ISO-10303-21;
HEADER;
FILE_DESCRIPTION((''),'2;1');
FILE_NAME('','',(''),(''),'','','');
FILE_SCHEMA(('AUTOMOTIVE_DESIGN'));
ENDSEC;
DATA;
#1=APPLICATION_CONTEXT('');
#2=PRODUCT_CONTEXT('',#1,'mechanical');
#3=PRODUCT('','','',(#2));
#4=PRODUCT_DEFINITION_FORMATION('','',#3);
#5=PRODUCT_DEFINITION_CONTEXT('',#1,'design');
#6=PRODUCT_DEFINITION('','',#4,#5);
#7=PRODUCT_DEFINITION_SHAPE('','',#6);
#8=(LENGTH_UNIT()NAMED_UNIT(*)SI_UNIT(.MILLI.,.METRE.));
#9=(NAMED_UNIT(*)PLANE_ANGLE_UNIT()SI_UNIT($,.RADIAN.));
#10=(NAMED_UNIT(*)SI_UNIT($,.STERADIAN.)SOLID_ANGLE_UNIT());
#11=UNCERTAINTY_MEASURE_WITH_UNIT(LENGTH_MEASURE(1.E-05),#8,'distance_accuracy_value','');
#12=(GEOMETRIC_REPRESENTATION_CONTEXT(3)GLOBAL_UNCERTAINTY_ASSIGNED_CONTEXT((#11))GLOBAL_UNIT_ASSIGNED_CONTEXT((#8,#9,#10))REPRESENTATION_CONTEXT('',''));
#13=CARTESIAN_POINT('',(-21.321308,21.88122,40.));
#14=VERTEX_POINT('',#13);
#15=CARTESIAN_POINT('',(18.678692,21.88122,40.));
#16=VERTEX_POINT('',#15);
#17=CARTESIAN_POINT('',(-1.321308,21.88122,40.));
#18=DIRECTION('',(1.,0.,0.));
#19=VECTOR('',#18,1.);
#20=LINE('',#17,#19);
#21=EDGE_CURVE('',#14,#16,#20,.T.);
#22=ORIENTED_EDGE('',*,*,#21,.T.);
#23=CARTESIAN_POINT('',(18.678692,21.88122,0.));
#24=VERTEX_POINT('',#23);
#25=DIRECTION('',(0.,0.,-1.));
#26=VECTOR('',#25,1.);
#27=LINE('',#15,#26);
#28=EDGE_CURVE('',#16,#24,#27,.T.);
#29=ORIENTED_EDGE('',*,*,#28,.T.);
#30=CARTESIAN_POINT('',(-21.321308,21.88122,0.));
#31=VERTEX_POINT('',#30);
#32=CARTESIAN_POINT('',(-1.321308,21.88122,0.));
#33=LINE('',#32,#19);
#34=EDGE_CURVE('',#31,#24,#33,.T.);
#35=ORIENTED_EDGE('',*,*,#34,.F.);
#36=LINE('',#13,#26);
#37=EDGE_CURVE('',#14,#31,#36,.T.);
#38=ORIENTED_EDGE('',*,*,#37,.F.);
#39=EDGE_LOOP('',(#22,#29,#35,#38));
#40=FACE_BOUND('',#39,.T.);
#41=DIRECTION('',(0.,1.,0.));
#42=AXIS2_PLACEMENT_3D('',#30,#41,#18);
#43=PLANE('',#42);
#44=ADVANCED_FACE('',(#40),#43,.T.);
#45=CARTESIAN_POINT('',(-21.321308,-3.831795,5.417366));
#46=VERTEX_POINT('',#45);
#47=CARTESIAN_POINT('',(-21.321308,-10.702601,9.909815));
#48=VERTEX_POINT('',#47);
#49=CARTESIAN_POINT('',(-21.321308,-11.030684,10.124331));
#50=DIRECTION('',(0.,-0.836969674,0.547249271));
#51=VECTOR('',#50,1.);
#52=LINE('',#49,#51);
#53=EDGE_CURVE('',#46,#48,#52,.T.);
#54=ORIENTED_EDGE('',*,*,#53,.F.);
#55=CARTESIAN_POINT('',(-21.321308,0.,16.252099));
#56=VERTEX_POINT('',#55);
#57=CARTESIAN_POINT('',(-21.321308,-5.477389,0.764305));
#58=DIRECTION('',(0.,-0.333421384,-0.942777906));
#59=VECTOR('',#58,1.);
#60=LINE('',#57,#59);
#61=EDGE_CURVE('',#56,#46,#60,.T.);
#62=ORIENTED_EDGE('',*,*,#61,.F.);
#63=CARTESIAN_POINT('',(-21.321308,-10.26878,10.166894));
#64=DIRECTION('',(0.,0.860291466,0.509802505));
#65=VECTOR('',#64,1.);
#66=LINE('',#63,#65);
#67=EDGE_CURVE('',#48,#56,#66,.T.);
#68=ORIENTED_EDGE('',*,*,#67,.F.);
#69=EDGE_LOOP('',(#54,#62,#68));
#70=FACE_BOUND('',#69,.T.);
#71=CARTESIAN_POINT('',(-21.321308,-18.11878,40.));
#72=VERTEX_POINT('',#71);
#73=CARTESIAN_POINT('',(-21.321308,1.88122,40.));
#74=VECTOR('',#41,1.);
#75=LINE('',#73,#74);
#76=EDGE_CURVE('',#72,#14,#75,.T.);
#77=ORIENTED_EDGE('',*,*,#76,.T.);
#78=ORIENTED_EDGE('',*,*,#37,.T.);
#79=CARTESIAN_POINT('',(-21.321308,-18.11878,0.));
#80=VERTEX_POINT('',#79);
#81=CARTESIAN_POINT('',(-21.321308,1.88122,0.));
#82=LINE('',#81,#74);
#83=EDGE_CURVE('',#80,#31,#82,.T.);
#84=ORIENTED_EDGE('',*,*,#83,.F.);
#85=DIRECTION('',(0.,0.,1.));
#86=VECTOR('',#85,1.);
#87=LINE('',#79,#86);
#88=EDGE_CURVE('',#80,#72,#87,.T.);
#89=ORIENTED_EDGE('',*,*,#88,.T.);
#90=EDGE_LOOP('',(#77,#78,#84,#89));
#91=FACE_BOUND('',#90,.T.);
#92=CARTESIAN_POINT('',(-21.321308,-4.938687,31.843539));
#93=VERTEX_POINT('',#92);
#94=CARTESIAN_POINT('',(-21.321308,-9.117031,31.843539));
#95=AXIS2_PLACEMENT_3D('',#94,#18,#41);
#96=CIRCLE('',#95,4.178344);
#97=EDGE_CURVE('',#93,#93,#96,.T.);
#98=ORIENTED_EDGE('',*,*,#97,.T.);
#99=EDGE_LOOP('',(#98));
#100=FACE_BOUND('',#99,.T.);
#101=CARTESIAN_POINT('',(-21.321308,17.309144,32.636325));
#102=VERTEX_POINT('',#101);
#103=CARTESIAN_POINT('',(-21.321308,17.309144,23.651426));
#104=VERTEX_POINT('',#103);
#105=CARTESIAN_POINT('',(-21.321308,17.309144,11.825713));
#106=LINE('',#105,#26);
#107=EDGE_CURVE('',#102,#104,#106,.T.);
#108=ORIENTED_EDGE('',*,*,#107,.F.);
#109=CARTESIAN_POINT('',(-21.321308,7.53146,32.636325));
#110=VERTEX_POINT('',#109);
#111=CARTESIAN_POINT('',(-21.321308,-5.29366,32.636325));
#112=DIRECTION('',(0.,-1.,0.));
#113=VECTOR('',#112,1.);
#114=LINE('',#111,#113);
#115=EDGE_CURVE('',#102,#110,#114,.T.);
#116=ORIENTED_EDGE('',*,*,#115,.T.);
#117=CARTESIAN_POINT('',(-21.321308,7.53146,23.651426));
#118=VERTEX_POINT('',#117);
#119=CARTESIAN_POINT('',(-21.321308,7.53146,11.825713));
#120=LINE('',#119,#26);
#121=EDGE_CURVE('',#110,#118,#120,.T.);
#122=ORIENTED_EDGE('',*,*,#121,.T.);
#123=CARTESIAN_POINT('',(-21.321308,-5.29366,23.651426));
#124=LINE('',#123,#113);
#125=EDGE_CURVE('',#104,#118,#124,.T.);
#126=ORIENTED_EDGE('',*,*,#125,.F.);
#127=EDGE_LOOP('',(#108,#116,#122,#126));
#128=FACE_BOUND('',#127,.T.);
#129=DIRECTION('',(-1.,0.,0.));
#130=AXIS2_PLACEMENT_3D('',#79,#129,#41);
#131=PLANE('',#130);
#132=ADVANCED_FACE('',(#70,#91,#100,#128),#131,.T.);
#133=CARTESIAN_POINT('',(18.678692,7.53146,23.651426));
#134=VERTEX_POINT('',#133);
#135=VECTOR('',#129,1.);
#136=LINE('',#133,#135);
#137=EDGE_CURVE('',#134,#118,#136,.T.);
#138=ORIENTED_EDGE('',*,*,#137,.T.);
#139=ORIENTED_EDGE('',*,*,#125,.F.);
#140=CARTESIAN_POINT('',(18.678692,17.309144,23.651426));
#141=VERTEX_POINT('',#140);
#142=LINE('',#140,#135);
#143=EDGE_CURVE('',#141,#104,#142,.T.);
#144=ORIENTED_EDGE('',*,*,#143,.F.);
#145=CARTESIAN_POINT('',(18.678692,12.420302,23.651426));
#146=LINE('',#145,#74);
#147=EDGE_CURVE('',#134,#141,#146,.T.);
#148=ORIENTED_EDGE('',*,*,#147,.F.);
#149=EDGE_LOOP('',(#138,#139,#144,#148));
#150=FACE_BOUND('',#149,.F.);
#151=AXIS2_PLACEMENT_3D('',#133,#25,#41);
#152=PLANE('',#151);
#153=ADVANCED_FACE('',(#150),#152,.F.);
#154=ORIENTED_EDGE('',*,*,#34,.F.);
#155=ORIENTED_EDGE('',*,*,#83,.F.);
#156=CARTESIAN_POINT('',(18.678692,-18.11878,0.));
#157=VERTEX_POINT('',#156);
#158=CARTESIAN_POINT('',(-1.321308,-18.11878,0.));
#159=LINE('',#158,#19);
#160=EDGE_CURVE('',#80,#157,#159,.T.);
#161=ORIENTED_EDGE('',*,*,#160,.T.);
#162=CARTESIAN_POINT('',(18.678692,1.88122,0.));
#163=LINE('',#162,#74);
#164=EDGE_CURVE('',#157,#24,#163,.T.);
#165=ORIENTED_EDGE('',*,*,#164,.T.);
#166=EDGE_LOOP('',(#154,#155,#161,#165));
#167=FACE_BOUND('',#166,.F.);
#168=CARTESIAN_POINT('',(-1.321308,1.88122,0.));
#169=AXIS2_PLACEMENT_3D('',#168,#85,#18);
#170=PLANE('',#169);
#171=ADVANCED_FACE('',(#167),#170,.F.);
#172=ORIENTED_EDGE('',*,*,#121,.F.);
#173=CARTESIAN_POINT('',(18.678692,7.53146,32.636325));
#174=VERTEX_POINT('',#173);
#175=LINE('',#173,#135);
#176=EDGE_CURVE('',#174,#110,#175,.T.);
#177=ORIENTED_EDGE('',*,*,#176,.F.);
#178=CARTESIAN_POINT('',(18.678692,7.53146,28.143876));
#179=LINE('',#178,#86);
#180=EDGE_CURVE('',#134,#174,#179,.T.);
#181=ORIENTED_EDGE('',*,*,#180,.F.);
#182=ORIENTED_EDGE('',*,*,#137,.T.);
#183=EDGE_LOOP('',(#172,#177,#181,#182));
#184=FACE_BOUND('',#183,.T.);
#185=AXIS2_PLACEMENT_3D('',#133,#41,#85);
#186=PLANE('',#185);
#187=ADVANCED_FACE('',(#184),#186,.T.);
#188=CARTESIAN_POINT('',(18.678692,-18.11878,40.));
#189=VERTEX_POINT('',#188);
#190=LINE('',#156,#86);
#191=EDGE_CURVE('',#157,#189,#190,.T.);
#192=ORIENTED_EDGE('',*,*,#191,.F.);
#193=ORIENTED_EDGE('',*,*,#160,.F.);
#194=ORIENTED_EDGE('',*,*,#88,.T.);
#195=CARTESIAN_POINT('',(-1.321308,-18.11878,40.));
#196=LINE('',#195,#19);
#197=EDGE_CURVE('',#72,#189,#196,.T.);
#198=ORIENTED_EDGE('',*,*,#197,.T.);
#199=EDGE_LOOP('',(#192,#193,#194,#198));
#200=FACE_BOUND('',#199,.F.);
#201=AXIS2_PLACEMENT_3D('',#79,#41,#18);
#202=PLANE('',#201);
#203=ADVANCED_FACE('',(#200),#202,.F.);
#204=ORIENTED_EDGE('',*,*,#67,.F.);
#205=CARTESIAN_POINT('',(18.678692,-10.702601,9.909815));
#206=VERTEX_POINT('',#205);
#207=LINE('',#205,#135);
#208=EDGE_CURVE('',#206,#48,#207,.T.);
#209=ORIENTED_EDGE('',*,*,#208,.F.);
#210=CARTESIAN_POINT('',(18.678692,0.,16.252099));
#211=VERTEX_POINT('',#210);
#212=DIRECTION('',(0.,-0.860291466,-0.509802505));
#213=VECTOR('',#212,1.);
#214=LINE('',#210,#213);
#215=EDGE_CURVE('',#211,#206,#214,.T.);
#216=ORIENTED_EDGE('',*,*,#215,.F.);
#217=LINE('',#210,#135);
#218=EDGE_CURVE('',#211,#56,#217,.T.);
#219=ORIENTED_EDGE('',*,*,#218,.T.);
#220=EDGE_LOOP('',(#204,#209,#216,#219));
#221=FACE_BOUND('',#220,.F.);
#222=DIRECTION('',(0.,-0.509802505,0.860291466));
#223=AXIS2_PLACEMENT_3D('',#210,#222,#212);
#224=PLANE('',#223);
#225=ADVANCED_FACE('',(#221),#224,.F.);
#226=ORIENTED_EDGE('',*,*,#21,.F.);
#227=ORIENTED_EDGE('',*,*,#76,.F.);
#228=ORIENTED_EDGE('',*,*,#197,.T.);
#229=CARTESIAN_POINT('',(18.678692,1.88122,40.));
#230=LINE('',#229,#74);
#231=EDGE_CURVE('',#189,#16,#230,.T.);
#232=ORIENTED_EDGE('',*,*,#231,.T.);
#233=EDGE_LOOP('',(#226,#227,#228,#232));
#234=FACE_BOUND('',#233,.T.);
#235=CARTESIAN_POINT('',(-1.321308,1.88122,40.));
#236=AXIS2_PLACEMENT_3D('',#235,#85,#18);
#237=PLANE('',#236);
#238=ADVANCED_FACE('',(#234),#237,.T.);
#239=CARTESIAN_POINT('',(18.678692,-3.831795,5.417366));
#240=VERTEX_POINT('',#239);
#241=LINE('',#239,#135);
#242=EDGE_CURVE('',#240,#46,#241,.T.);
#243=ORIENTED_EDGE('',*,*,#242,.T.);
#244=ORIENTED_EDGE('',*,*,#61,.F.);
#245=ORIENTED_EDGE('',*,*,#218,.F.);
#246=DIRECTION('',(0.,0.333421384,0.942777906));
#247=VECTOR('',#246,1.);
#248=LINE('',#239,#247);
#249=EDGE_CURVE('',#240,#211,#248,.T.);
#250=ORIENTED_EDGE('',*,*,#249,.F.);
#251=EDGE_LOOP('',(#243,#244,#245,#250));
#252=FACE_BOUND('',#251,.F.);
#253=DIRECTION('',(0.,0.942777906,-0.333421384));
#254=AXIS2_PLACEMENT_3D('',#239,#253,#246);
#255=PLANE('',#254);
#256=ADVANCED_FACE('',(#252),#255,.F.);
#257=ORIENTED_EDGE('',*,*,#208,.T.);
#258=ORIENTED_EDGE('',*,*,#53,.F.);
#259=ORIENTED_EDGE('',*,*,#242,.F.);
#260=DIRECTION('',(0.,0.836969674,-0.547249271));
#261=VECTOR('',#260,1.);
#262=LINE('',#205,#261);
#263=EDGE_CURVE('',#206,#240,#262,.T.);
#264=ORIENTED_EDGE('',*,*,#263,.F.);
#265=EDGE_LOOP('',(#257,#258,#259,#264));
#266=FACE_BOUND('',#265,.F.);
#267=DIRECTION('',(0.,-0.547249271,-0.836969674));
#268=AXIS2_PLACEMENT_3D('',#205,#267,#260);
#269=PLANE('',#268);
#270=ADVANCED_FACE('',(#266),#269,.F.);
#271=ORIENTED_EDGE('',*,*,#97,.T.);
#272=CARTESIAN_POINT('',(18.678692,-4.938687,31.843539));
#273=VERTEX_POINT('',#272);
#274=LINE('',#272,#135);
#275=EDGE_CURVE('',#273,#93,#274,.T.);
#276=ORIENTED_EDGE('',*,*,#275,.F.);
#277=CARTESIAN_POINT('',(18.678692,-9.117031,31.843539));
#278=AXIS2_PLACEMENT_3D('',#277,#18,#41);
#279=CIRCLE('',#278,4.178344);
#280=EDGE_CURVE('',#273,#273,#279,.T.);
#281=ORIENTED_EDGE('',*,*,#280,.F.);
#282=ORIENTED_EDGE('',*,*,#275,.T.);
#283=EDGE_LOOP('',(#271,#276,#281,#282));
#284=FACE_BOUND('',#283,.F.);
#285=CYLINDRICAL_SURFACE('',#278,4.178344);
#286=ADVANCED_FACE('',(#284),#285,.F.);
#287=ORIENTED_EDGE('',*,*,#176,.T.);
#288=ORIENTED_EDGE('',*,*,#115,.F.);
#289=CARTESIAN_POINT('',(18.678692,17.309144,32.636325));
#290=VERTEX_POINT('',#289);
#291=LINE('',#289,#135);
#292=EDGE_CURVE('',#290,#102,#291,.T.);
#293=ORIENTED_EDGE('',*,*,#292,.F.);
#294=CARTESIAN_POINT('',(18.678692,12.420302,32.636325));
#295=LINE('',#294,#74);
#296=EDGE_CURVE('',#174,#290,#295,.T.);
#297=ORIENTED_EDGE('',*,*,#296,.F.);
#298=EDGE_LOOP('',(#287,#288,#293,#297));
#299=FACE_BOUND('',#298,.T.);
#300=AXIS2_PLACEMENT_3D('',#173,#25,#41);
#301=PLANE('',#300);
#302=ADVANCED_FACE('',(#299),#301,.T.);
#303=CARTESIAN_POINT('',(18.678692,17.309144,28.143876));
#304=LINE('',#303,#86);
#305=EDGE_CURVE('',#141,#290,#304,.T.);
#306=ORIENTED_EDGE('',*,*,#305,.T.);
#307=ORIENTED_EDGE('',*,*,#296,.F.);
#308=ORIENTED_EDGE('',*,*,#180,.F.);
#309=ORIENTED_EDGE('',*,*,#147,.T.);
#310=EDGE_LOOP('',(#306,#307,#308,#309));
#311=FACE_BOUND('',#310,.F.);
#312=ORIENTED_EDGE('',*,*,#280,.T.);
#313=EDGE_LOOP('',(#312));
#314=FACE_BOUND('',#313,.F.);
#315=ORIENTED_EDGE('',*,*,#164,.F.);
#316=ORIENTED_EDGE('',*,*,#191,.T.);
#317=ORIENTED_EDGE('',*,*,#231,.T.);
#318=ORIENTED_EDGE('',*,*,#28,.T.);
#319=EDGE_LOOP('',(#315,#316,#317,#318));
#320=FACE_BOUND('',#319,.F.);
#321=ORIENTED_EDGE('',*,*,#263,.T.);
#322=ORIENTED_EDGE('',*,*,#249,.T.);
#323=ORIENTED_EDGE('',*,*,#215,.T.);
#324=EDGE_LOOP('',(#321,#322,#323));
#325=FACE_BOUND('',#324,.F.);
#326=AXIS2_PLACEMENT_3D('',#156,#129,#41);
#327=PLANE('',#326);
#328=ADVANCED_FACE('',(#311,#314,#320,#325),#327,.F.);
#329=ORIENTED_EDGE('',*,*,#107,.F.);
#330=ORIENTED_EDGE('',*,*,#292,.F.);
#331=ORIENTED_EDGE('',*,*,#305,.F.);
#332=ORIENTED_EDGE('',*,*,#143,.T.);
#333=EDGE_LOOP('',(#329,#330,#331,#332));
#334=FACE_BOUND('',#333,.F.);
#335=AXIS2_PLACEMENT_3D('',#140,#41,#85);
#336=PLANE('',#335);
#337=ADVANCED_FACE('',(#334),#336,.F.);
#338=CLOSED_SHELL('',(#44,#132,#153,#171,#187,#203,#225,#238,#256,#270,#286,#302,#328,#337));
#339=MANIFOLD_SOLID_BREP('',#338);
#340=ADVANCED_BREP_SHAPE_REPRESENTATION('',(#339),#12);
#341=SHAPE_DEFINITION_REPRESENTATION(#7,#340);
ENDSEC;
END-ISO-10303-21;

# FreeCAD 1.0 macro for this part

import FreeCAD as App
import Part
import Sketcher
Q = App.Units.Quantity


def add_polygon(sketch, points):
    """Adds a closed chain of lines whose ends are joined by coincident constraints."""
    first, n = sketch.GeometryCount, len(points)
    for a, b in zip(points, points[1:] + points[:1]):
        sketch.addGeometry(Part.LineSegment(App.Vector(*a, 0), App.Vector(*b, 0)), False)
    for i in range(n):
        sketch.addConstraint(Sketcher.Constraint("Coincident", first + i, 2, first + (i + 1) % n, 1))

doc = App.newDocument("Part")
body = doc.addObject("PartDesign::Body", "Body")

# Sketch on XY plane
sketch1 = doc.addObject("Sketcher::SketchObject", "Sketch")
body.addObject(sketch1)
sketch1.AttachmentSupport = (doc.XY_Plane, [""])
sketch1.MapMode = "FlatFace"
add_polygon(sketch1, [(-21, 22), (-21, -18), (19, -18), (19, 22)])  # lines 0-3
sketch1.addConstraint([
    Sketcher.Constraint("Vertical", 0),
    Sketcher.Constraint("Horizontal", 1),
    Sketcher.Constraint("Vertical", 2),
    Sketcher.Constraint("Horizontal", 3),
    Sketcher.Constraint("Equal", 3, 0),
    Sketcher.Constraint("DistanceX", 1, 1, 1, 2, Q("40 mm")),
    Sketcher.Constraint("DistanceY", 0, 2, -1, 1, Q("18.11878 mm")),
    Sketcher.Constraint("DistanceX", 0, 2, -1, 1, Q("21.321308 mm")),
])
pad1 = doc.addObject("PartDesign::Pad", "Pad")
body.addObject(pad1)
pad1.Profile = sketch1
pad1.Length = 25

# Sketch on XY plane
sketch2 = doc.addObject("Sketcher::SketchObject", "Sketch001")
body.addObject(sketch2)
sketch2.AttachmentSupport = (doc.XY_Plane, [""])
sketch2.MapMode = "FlatFace"
add_polygon(sketch2, [(-21, 22), (-21, -18), (19, -18), (19, 22)])  # lines 0-3
sketch2.addConstraint([
    Sketcher.Constraint("Vertical", 0),
    Sketcher.Constraint("Horizontal", 1),
    Sketcher.Constraint("Vertical", 2),
    Sketcher.Constraint("Horizontal", 3),
    Sketcher.Constraint("Equal", 3, 0),
    Sketcher.Constraint("DistanceX", 1, 1, 1, 2, Q("40 mm")),
    Sketcher.Constraint("DistanceY", 0, 2, -1, 1, Q("18.11878 mm")),
    Sketcher.Constraint("DistanceX", 0, 2, -1, 1, Q("21.321308 mm")),
])
pad2 = doc.addObject("PartDesign::Pad", "Pad001")
body.addObject(pad2)
pad2.Profile = sketch2
pad2.Length = 40

# Sketch on YZ plane
sketch3 = doc.addObject("Sketcher::SketchObject", "Sketch002")
body.addObject(sketch3)
sketch3.AttachmentSupport = (doc.YZ_Plane, [""])
sketch3.MapMode = "FlatFace"
sketch3.AttachmentOffset = App.Placement(App.Vector(0, 0, 18.678692), App.Rotation())
sketch3.addGeometry(Part.Circle(App.Vector(-9.1, 31.8, 0), App.Vector(0, 0, 1), 4.2), False)  # 0
add_polygon(sketch3, [(7.5, 32.6), (7.5, 23.7), (17.3, 23.7), (17.3, 32.6)])  # lines 1-4
add_polygon(sketch3, [(0, 16.3), (-10.7, 9.9), (-3.8, 5.4)])  # lines 5-7
sketch3.addConstraint([
    Sketcher.Constraint("Vertical", 1),
    Sketcher.Constraint("Horizontal", 2),
    Sketcher.Constraint("Vertical", 3),
    Sketcher.Constraint("Horizontal", 4),
    Sketcher.Constraint("PointOnObject", 7, 2, -2),
    Sketcher.Constraint("Diameter", 0, Q("8.356688 mm")),
    Sketcher.Constraint("DistanceY", 1, 2, 1, 1, Q("8.984899 mm")),
    Sketcher.Constraint("DistanceX", 5, 2, -1, 1, Q("10.702601 mm")),
    Sketcher.Constraint("DistanceY", -1, 1, 7, 2, Q("16.252099 mm")),
    Sketcher.Constraint("Distance", 5, Q("12.440669 mm")),
    Sketcher.Constraint("Distance", 7, Q("11.492349 mm")),
    Sketcher.Constraint("DistanceX", 2, 1, 2, 2, Q("9.777684 mm")),
    Sketcher.Constraint("DistanceX", 0, 3, -1, 1, Q("9.117031 mm")),
    Sketcher.Constraint("DistanceY", -1, 1, 0, 3, Q("31.843539 mm")),
    Sketcher.Constraint("DistanceX", -1, 1, 1, 2, Q("7.53146 mm")),
    Sketcher.Constraint("DistanceY", 5, 2, 1, 2, Q("13.741611 mm")),
    Sketcher.Constraint("DistanceY", 6, 2, 5, 2, Q("4.492449 mm")),
])
pocket1 = doc.addObject("PartDesign::Pocket", "Pocket")
body.addObject(pocket1)
pocket1.Profile = sketch3
pocket1.Type = "ThroughAll"

doc.recompute()
